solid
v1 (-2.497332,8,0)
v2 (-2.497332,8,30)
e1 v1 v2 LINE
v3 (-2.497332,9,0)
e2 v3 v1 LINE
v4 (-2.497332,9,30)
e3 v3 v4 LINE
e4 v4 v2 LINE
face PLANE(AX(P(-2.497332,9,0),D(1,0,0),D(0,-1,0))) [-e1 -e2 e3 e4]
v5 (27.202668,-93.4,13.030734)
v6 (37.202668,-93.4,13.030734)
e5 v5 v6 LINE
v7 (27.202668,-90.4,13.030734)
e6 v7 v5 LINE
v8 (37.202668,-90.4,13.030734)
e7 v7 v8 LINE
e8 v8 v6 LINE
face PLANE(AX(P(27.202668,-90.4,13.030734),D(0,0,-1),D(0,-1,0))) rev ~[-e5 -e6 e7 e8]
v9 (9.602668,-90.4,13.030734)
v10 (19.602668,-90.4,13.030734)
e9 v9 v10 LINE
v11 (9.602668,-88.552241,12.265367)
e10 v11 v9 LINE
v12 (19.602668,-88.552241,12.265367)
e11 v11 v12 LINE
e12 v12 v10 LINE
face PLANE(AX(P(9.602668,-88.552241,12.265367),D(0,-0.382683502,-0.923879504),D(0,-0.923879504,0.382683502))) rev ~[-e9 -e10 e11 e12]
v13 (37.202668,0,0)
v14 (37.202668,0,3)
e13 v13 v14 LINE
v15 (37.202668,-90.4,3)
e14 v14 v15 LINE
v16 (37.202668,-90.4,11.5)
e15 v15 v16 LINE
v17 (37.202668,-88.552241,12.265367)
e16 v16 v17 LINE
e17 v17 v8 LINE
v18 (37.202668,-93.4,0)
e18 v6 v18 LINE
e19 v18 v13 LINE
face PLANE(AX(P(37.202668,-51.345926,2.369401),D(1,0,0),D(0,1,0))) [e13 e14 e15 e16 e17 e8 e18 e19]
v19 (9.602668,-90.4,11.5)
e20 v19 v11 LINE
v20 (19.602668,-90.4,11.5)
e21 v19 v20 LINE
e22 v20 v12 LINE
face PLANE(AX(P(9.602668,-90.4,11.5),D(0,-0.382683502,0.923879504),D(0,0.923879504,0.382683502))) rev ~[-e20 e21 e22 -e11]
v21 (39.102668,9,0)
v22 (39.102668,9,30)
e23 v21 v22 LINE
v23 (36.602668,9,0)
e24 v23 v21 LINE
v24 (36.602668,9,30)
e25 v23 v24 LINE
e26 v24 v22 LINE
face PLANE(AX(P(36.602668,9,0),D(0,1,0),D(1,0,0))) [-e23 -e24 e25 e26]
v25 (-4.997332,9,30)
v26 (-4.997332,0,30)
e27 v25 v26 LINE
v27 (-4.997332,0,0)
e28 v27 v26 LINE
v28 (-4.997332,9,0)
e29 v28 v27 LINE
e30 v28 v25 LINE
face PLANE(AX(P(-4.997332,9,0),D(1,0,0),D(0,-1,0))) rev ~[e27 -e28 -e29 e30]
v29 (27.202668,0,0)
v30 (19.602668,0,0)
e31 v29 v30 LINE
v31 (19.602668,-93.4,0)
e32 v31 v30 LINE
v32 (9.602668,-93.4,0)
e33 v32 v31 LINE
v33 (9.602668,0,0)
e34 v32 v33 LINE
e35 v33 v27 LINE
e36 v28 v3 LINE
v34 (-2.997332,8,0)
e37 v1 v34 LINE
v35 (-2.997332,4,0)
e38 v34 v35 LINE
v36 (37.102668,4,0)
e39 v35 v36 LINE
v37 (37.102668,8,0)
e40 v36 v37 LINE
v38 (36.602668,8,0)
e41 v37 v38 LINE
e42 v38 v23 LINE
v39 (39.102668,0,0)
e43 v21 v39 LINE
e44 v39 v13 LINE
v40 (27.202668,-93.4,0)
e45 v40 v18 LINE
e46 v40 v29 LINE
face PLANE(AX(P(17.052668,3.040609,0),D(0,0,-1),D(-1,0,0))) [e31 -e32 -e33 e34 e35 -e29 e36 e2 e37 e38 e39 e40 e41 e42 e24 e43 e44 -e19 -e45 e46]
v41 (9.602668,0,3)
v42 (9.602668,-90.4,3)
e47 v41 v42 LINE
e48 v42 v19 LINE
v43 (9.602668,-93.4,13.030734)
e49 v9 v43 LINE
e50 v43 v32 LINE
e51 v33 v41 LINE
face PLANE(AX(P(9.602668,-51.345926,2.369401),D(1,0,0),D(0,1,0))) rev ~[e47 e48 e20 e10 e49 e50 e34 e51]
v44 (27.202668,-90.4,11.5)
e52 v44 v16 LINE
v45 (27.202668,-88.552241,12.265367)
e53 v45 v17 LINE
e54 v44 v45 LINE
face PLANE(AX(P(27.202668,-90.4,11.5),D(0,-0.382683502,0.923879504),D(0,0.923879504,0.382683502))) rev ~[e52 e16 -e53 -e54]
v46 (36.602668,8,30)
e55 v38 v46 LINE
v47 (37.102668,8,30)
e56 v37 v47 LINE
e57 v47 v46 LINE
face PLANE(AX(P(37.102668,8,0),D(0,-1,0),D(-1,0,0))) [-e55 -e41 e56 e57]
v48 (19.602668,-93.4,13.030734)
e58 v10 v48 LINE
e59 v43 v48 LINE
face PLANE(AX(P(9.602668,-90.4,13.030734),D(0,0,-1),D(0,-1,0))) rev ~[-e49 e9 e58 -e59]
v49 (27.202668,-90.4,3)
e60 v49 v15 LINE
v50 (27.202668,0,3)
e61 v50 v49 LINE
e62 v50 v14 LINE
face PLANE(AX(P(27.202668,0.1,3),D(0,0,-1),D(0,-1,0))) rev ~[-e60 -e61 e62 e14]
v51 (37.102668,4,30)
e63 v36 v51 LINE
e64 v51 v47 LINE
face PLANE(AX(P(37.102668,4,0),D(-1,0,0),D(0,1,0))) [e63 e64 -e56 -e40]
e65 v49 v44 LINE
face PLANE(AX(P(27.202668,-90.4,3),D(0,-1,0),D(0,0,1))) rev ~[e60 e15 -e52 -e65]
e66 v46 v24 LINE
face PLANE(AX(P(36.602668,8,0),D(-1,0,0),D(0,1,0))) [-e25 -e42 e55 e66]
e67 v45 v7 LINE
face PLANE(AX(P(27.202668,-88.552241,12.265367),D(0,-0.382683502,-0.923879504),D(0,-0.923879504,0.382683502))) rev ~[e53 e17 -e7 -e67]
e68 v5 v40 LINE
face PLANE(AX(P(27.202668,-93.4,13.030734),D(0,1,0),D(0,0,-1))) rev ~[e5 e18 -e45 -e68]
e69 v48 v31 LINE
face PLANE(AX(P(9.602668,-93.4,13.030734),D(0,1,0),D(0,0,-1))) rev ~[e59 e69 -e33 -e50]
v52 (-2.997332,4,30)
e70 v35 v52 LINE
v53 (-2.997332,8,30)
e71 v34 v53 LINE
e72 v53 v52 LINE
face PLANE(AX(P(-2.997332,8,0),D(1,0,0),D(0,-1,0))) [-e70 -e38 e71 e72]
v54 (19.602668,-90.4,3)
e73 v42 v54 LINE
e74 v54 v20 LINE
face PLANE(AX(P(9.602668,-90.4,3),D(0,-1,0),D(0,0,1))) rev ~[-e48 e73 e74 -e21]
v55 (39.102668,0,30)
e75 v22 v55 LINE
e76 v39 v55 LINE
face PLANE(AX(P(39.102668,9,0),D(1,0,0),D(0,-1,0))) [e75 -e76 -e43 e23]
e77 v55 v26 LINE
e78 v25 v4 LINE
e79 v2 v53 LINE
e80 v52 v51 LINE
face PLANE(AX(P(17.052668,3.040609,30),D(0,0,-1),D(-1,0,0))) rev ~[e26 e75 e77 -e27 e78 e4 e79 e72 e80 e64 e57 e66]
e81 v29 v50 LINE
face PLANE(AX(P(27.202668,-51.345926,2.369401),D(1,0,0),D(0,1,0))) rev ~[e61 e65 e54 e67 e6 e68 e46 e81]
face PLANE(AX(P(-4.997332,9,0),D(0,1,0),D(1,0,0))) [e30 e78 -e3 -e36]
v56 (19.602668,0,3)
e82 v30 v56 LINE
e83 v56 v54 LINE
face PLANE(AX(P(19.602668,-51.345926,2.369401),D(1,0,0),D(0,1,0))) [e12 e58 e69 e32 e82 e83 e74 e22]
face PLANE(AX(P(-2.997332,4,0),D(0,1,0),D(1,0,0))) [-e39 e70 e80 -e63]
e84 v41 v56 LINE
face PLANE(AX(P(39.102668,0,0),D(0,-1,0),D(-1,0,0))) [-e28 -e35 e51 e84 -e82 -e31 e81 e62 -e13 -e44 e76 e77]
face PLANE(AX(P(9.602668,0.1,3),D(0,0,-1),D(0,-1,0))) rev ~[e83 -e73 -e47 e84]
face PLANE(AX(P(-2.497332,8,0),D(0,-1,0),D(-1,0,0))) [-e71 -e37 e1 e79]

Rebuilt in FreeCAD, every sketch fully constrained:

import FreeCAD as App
import Part
import Sketcher
from FreeCAD import Vector
Q = App.Units.Quantity

doc = App.newDocument("Part")
params = doc.addObject("Spreadsheet::Sheet", "Params")
for row, (alias, value) in enumerate([
    ("sketch1_height", "9 mm"),
    ("sketch1_height2", "1 mm"),
    ("sketch1_height3", "4 mm"),
    ("sketch1_width", "2.5 mm"),
    ("sketch1_width2", "44.1 mm"),
    ("pad1_length", "30 mm"),
    ("sketch2_width", "3 mm"),
    ("sketch2_length", "2 mm"),
    ("sketch2_width2", "90.5 mm"),
    ("sketch2_height", "8.5 mm"),
    ("pad2_length", "10 mm"),
    ("sketch3_width", "3 mm"),
    ("sketch3_length", "2 mm"),
    ("sketch3_width2", "90.5 mm"),
    ("sketch3_height", "8.5 mm"),
    ("pad3_length", "10 mm"),
], start=1):
    params.set(f"A{row}", alias)
    params.set(f"B{row}", "=" + value)
    params.setAlias(f"B{row}", alias)

body = doc.addObject("PartDesign::Body", "Body")

# Sketch on XY plane
sketch1 = body.newObject("Sketcher::SketchObject", "Sketch")
sketch1.AttachmentSupport = (doc.getObject("XY_Plane"), [""])
sketch1.MapMode = "FlatFace"
sketch1.addGeometry([
    Part.LineSegment(Vector(-2.497332, 9, 0), Vector(-4.997332, 9, 0)),  # 0
    Part.LineSegment(Vector(-4.997332, 9, 0), Vector(-4.997332, 0, 0)),  # 1
    Part.LineSegment(Vector(-4.997332, 0, 0), Vector(39.102668, 0, 0)),  # 2
    Part.LineSegment(Vector(39.102668, 0, 0), Vector(39.102668, 9, 0)),  # 3
    Part.LineSegment(Vector(39.102668, 9, 0), Vector(36.602668, 9, 0)),  # 4
    Part.LineSegment(Vector(36.602668, 9, 0), Vector(36.602668, 8, 0)),  # 5
    Part.LineSegment(Vector(36.602668, 8, 0), Vector(37.102668, 8, 0)),  # 6
    Part.LineSegment(Vector(37.102668, 8, 0), Vector(37.102668, 4, 0)),  # 7
    Part.LineSegment(Vector(37.102668, 4, 0), Vector(-2.997332, 4, 0)),  # 8
    Part.LineSegment(Vector(-2.997332, 4, 0), Vector(-2.997332, 8, 0)),  # 9
    Part.LineSegment(Vector(-2.997332, 8, 0), Vector(-2.497332, 8, 0)),  # 10
    Part.LineSegment(Vector(-2.497332, 8, 0), Vector(-2.497332, 9, 0)),  # 11
], False)
sketch1.addConstraint([
    Sketcher.Constraint("Coincident", 0, 2, 1, 1),
    Sketcher.Constraint("Coincident", 1, 2, 2, 1),
    Sketcher.Constraint("Coincident", 2, 2, 3, 1),
    Sketcher.Constraint("Coincident", 3, 2, 4, 1),
    Sketcher.Constraint("Coincident", 4, 2, 5, 1),
    Sketcher.Constraint("Coincident", 5, 2, 6, 1),
    Sketcher.Constraint("Coincident", 6, 2, 7, 1),
    Sketcher.Constraint("Coincident", 7, 2, 8, 1),
    Sketcher.Constraint("Coincident", 8, 2, 9, 1),
    Sketcher.Constraint("Coincident", 9, 2, 10, 1),
    Sketcher.Constraint("Coincident", 10, 2, 11, 1),
    Sketcher.Constraint("Coincident", 11, 2, 0, 1),
    Sketcher.Constraint("Horizontal", 0),
    Sketcher.Constraint("Vertical", 1),
    Sketcher.Constraint("Horizontal", 2),
    Sketcher.Constraint("Vertical", 3),
    Sketcher.Constraint("Horizontal", 4),
    Sketcher.Constraint("Vertical", 5),
    Sketcher.Constraint("Horizontal", 6),
    Sketcher.Constraint("Vertical", 7),
    Sketcher.Constraint("Horizontal", 8),
    Sketcher.Constraint("Vertical", 9),
    Sketcher.Constraint("Horizontal", 10),
    Sketcher.Constraint("Vertical", 11),
    Sketcher.Constraint("PointOnObject", 1, 2, -1),
    Sketcher.Constraint("Horizontal", 0, 2, 3, 2),
    Sketcher.Constraint("Horizontal", 6, 2, 9, 2),
    Sketcher.Constraint("Equal", 0, 4),
    Sketcher.Constraint("Equal", 6, 10),
    Sketcher.Constraint("DistanceY", 1, 2, 1, 1, Q("9 mm")),
    Sketcher.Constraint("DistanceY", 5, 2, 5, 1, Q("1 mm")),
    Sketcher.Constraint("DistanceY", 7, 2, 7, 1, Q("4 mm")),
    Sketcher.Constraint("DistanceX", 0, 2, 0, 1, Q("2.5 mm")),
    Sketcher.Constraint("DistanceX", 2, 1, 2, 2, Q("44.1 mm")),
    Sketcher.Constraint("DistanceX", 6, 1, 6, 2, Q("0.5 mm")),
    Sketcher.Constraint("DistanceX", 0, 2, -1, 1, Q("4.997332 mm")),
])
sketch1.setExpression("Constraints[29]", "Params.sketch1_height")
sketch1.setExpression("Constraints[30]", "Params.sketch1_height2")
sketch1.setExpression("Constraints[31]", "Params.sketch1_height3")
sketch1.setExpression("Constraints[32]", "Params.sketch1_width")
sketch1.setExpression("Constraints[33]", "Params.sketch1_width2")
pad1 = body.newObject("PartDesign::Pad", "Pad")
pad1.Profile = sketch1
pad1.setExpression("Length", "Params.pad1_length")

# Sketch on YZ plane
sketch2 = body.newObject("Sketcher::SketchObject", "Sketch001")
sketch2.AttachmentSupport = (doc.getObject("YZ_Plane"), [""])
sketch2.MapMode = "FlatFace"
sketch2.AttachmentOffset = App.Placement(Vector(0, 0, 9.602668), App.Rotation())
sketch2.addGeometry([
    Part.LineSegment(Vector(0.1, 0, 0), Vector(0.1, 3, 0)),  # 0
    Part.LineSegment(Vector(0.1, 3, 0), Vector(-90.4, 3, 0)),  # 1
    Part.LineSegment(Vector(-90.4, 3, 0), Vector(-90.4, 11.5, 0)),  # 2
    Part.LineSegment(Vector(-90.4, 11.5, 0), Vector(-88.552241, 12.265367, 0)),  # 3
    Part.LineSegment(Vector(-88.552241, 12.265367, 0), Vector(-90.4, 13.030734, 0)),  # 4
    Part.LineSegment(Vector(-90.4, 13.030734, 0), Vector(-93.4, 13.030734, 0)),  # 5
    Part.LineSegment(Vector(-93.4, 13.030734, 0), Vector(-93.4, 0, 0)),  # 6
    Part.LineSegment(Vector(-93.4, 0, 0), Vector(0.1, 0, 0)),  # 7
], False)
sketch2.addConstraint([
    Sketcher.Constraint("Coincident", 0, 2, 1, 1),
    Sketcher.Constraint("Coincident", 1, 2, 2, 1),
    Sketcher.Constraint("Coincident", 2, 2, 3, 1),
    Sketcher.Constraint("Coincident", 3, 2, 4, 1),
    Sketcher.Constraint("Coincident", 4, 2, 5, 1),
    Sketcher.Constraint("Coincident", 5, 2, 6, 1),
    Sketcher.Constraint("Coincident", 6, 2, 7, 1),
    Sketcher.Constraint("Coincident", 7, 2, 0, 1),
    Sketcher.Constraint("Vertical", 0),
    Sketcher.Constraint("Horizontal", 1),
    Sketcher.Constraint("Vertical", 2),
    Sketcher.Constraint("Horizontal", 5),
    Sketcher.Constraint("Vertical", 6),
    Sketcher.Constraint("Horizontal", 7),
    Sketcher.Constraint("PointOnObject", 6, 2, -1),
    Sketcher.Constraint("Vertical", 2, 2, 4, 2),
    Sketcher.Constraint("Equal", 5, 0),
    Sketcher.Constraint("Equal", 3, 4),
    Sketcher.Constraint("DistanceX", 5, 2, 5, 1, Q("3 mm")),
    Sketcher.Constraint("Distance", 3, Q("2 mm")),
    Sketcher.Constraint("DistanceX", 1, 2, 1, 1, Q("90.5 mm")),
    Sketcher.Constraint("DistanceY", 2, 1, 2, 2, Q("8.5 mm")),
    Sketcher.Constraint("Angle", 3, Q("22.500004 deg")),
    Sketcher.Constraint("DistanceX", -1, 1, 0, 2, Q("0.1 mm")),
])
sketch2.setExpression("Constraints[18]", "Params.sketch2_width")
sketch2.setExpression("Constraints[19]", "Params.sketch2_length")
sketch2.setExpression("Constraints[20]", "Params.sketch2_width2")
sketch2.setExpression("Constraints[21]", "Params.sketch2_height")
pad2 = body.newObject("PartDesign::Pad", "Pad001")
pad2.Profile = sketch2
pad2.setExpression("Length", "Params.pad2_length")

# Sketch on YZ plane
sketch3 = body.newObject("Sketcher::SketchObject", "Sketch002")
sketch3.AttachmentSupport = (doc.getObject("YZ_Plane"), [""])
sketch3.MapMode = "FlatFace"
sketch3.AttachmentOffset = App.Placement(Vector(0, 0, 27.202668), App.Rotation())
sketch3.addGeometry([
    Part.LineSegment(Vector(0.1, 0, 0), Vector(0.1, 3, 0)),  # 0
    Part.LineSegment(Vector(0.1, 3, 0), Vector(-90.4, 3, 0)),  # 1
    Part.LineSegment(Vector(-90.4, 3, 0), Vector(-90.4, 11.5, 0)),  # 2
    Part.LineSegment(Vector(-90.4, 11.5, 0), Vector(-88.552241, 12.265367, 0)),  # 3
    Part.LineSegment(Vector(-88.552241, 12.265367, 0), Vector(-90.4, 13.030734, 0)),  # 4
    Part.LineSegment(Vector(-90.4, 13.030734, 0), Vector(-93.4, 13.030734, 0)),  # 5
    Part.LineSegment(Vector(-93.4, 13.030734, 0), Vector(-93.4, 0, 0)),  # 6
    Part.LineSegment(Vector(-93.4, 0, 0), Vector(0.1, 0, 0)),  # 7
], False)
sketch3.addConstraint([
    Sketcher.Constraint("Coincident", 0, 2, 1, 1),
    Sketcher.Constraint("Coincident", 1, 2, 2, 1),
    Sketcher.Constraint("Coincident", 2, 2, 3, 1),
    Sketcher.Constraint("Coincident", 3, 2, 4, 1),
    Sketcher.Constraint("Coincident", 4, 2, 5, 1),
    Sketcher.Constraint("Coincident", 5, 2, 6, 1),
    Sketcher.Constraint("Coincident", 6, 2, 7, 1),
    Sketcher.Constraint("Coincident", 7, 2, 0, 1),
    Sketcher.Constraint("Vertical", 0),
    Sketcher.Constraint("Horizontal", 1),
    Sketcher.Constraint("Vertical", 2),
    Sketcher.Constraint("Horizontal", 5),
    Sketcher.Constraint("Vertical", 6),
    Sketcher.Constraint("Horizontal", 7),
    Sketcher.Constraint("PointOnObject", 6, 2, -1),
    Sketcher.Constraint("Vertical", 2, 2, 4, 2),
    Sketcher.Constraint("Equal", 5, 0),
    Sketcher.Constraint("Equal", 3, 4),
    Sketcher.Constraint("DistanceX", 5, 2, 5, 1, Q("3 mm")),
    Sketcher.Constraint("Distance", 3, Q("2 mm")),
    Sketcher.Constraint("DistanceX", 1, 2, 1, 1, Q("90.5 mm")),
    Sketcher.Constraint("DistanceY", 2, 1, 2, 2, Q("8.5 mm")),
    Sketcher.Constraint("Angle", 3, Q("22.500004 deg")),
    Sketcher.Constraint("DistanceX", -1, 1, 0, 2, Q("0.1 mm")),
])
sketch3.setExpression("Constraints[18]", "Params.sketch3_width")
sketch3.setExpression("Constraints[19]", "Params.sketch3_length")
sketch3.setExpression("Constraints[20]", "Params.sketch3_width2")
sketch3.setExpression("Constraints[21]", "Params.sketch3_height")
pad3 = body.newObject("PartDesign::Pad", "Pad002")
pad3.Profile = sketch3
pad3.setExpression("Length", "Params.pad3_length")

doc.recompute()
